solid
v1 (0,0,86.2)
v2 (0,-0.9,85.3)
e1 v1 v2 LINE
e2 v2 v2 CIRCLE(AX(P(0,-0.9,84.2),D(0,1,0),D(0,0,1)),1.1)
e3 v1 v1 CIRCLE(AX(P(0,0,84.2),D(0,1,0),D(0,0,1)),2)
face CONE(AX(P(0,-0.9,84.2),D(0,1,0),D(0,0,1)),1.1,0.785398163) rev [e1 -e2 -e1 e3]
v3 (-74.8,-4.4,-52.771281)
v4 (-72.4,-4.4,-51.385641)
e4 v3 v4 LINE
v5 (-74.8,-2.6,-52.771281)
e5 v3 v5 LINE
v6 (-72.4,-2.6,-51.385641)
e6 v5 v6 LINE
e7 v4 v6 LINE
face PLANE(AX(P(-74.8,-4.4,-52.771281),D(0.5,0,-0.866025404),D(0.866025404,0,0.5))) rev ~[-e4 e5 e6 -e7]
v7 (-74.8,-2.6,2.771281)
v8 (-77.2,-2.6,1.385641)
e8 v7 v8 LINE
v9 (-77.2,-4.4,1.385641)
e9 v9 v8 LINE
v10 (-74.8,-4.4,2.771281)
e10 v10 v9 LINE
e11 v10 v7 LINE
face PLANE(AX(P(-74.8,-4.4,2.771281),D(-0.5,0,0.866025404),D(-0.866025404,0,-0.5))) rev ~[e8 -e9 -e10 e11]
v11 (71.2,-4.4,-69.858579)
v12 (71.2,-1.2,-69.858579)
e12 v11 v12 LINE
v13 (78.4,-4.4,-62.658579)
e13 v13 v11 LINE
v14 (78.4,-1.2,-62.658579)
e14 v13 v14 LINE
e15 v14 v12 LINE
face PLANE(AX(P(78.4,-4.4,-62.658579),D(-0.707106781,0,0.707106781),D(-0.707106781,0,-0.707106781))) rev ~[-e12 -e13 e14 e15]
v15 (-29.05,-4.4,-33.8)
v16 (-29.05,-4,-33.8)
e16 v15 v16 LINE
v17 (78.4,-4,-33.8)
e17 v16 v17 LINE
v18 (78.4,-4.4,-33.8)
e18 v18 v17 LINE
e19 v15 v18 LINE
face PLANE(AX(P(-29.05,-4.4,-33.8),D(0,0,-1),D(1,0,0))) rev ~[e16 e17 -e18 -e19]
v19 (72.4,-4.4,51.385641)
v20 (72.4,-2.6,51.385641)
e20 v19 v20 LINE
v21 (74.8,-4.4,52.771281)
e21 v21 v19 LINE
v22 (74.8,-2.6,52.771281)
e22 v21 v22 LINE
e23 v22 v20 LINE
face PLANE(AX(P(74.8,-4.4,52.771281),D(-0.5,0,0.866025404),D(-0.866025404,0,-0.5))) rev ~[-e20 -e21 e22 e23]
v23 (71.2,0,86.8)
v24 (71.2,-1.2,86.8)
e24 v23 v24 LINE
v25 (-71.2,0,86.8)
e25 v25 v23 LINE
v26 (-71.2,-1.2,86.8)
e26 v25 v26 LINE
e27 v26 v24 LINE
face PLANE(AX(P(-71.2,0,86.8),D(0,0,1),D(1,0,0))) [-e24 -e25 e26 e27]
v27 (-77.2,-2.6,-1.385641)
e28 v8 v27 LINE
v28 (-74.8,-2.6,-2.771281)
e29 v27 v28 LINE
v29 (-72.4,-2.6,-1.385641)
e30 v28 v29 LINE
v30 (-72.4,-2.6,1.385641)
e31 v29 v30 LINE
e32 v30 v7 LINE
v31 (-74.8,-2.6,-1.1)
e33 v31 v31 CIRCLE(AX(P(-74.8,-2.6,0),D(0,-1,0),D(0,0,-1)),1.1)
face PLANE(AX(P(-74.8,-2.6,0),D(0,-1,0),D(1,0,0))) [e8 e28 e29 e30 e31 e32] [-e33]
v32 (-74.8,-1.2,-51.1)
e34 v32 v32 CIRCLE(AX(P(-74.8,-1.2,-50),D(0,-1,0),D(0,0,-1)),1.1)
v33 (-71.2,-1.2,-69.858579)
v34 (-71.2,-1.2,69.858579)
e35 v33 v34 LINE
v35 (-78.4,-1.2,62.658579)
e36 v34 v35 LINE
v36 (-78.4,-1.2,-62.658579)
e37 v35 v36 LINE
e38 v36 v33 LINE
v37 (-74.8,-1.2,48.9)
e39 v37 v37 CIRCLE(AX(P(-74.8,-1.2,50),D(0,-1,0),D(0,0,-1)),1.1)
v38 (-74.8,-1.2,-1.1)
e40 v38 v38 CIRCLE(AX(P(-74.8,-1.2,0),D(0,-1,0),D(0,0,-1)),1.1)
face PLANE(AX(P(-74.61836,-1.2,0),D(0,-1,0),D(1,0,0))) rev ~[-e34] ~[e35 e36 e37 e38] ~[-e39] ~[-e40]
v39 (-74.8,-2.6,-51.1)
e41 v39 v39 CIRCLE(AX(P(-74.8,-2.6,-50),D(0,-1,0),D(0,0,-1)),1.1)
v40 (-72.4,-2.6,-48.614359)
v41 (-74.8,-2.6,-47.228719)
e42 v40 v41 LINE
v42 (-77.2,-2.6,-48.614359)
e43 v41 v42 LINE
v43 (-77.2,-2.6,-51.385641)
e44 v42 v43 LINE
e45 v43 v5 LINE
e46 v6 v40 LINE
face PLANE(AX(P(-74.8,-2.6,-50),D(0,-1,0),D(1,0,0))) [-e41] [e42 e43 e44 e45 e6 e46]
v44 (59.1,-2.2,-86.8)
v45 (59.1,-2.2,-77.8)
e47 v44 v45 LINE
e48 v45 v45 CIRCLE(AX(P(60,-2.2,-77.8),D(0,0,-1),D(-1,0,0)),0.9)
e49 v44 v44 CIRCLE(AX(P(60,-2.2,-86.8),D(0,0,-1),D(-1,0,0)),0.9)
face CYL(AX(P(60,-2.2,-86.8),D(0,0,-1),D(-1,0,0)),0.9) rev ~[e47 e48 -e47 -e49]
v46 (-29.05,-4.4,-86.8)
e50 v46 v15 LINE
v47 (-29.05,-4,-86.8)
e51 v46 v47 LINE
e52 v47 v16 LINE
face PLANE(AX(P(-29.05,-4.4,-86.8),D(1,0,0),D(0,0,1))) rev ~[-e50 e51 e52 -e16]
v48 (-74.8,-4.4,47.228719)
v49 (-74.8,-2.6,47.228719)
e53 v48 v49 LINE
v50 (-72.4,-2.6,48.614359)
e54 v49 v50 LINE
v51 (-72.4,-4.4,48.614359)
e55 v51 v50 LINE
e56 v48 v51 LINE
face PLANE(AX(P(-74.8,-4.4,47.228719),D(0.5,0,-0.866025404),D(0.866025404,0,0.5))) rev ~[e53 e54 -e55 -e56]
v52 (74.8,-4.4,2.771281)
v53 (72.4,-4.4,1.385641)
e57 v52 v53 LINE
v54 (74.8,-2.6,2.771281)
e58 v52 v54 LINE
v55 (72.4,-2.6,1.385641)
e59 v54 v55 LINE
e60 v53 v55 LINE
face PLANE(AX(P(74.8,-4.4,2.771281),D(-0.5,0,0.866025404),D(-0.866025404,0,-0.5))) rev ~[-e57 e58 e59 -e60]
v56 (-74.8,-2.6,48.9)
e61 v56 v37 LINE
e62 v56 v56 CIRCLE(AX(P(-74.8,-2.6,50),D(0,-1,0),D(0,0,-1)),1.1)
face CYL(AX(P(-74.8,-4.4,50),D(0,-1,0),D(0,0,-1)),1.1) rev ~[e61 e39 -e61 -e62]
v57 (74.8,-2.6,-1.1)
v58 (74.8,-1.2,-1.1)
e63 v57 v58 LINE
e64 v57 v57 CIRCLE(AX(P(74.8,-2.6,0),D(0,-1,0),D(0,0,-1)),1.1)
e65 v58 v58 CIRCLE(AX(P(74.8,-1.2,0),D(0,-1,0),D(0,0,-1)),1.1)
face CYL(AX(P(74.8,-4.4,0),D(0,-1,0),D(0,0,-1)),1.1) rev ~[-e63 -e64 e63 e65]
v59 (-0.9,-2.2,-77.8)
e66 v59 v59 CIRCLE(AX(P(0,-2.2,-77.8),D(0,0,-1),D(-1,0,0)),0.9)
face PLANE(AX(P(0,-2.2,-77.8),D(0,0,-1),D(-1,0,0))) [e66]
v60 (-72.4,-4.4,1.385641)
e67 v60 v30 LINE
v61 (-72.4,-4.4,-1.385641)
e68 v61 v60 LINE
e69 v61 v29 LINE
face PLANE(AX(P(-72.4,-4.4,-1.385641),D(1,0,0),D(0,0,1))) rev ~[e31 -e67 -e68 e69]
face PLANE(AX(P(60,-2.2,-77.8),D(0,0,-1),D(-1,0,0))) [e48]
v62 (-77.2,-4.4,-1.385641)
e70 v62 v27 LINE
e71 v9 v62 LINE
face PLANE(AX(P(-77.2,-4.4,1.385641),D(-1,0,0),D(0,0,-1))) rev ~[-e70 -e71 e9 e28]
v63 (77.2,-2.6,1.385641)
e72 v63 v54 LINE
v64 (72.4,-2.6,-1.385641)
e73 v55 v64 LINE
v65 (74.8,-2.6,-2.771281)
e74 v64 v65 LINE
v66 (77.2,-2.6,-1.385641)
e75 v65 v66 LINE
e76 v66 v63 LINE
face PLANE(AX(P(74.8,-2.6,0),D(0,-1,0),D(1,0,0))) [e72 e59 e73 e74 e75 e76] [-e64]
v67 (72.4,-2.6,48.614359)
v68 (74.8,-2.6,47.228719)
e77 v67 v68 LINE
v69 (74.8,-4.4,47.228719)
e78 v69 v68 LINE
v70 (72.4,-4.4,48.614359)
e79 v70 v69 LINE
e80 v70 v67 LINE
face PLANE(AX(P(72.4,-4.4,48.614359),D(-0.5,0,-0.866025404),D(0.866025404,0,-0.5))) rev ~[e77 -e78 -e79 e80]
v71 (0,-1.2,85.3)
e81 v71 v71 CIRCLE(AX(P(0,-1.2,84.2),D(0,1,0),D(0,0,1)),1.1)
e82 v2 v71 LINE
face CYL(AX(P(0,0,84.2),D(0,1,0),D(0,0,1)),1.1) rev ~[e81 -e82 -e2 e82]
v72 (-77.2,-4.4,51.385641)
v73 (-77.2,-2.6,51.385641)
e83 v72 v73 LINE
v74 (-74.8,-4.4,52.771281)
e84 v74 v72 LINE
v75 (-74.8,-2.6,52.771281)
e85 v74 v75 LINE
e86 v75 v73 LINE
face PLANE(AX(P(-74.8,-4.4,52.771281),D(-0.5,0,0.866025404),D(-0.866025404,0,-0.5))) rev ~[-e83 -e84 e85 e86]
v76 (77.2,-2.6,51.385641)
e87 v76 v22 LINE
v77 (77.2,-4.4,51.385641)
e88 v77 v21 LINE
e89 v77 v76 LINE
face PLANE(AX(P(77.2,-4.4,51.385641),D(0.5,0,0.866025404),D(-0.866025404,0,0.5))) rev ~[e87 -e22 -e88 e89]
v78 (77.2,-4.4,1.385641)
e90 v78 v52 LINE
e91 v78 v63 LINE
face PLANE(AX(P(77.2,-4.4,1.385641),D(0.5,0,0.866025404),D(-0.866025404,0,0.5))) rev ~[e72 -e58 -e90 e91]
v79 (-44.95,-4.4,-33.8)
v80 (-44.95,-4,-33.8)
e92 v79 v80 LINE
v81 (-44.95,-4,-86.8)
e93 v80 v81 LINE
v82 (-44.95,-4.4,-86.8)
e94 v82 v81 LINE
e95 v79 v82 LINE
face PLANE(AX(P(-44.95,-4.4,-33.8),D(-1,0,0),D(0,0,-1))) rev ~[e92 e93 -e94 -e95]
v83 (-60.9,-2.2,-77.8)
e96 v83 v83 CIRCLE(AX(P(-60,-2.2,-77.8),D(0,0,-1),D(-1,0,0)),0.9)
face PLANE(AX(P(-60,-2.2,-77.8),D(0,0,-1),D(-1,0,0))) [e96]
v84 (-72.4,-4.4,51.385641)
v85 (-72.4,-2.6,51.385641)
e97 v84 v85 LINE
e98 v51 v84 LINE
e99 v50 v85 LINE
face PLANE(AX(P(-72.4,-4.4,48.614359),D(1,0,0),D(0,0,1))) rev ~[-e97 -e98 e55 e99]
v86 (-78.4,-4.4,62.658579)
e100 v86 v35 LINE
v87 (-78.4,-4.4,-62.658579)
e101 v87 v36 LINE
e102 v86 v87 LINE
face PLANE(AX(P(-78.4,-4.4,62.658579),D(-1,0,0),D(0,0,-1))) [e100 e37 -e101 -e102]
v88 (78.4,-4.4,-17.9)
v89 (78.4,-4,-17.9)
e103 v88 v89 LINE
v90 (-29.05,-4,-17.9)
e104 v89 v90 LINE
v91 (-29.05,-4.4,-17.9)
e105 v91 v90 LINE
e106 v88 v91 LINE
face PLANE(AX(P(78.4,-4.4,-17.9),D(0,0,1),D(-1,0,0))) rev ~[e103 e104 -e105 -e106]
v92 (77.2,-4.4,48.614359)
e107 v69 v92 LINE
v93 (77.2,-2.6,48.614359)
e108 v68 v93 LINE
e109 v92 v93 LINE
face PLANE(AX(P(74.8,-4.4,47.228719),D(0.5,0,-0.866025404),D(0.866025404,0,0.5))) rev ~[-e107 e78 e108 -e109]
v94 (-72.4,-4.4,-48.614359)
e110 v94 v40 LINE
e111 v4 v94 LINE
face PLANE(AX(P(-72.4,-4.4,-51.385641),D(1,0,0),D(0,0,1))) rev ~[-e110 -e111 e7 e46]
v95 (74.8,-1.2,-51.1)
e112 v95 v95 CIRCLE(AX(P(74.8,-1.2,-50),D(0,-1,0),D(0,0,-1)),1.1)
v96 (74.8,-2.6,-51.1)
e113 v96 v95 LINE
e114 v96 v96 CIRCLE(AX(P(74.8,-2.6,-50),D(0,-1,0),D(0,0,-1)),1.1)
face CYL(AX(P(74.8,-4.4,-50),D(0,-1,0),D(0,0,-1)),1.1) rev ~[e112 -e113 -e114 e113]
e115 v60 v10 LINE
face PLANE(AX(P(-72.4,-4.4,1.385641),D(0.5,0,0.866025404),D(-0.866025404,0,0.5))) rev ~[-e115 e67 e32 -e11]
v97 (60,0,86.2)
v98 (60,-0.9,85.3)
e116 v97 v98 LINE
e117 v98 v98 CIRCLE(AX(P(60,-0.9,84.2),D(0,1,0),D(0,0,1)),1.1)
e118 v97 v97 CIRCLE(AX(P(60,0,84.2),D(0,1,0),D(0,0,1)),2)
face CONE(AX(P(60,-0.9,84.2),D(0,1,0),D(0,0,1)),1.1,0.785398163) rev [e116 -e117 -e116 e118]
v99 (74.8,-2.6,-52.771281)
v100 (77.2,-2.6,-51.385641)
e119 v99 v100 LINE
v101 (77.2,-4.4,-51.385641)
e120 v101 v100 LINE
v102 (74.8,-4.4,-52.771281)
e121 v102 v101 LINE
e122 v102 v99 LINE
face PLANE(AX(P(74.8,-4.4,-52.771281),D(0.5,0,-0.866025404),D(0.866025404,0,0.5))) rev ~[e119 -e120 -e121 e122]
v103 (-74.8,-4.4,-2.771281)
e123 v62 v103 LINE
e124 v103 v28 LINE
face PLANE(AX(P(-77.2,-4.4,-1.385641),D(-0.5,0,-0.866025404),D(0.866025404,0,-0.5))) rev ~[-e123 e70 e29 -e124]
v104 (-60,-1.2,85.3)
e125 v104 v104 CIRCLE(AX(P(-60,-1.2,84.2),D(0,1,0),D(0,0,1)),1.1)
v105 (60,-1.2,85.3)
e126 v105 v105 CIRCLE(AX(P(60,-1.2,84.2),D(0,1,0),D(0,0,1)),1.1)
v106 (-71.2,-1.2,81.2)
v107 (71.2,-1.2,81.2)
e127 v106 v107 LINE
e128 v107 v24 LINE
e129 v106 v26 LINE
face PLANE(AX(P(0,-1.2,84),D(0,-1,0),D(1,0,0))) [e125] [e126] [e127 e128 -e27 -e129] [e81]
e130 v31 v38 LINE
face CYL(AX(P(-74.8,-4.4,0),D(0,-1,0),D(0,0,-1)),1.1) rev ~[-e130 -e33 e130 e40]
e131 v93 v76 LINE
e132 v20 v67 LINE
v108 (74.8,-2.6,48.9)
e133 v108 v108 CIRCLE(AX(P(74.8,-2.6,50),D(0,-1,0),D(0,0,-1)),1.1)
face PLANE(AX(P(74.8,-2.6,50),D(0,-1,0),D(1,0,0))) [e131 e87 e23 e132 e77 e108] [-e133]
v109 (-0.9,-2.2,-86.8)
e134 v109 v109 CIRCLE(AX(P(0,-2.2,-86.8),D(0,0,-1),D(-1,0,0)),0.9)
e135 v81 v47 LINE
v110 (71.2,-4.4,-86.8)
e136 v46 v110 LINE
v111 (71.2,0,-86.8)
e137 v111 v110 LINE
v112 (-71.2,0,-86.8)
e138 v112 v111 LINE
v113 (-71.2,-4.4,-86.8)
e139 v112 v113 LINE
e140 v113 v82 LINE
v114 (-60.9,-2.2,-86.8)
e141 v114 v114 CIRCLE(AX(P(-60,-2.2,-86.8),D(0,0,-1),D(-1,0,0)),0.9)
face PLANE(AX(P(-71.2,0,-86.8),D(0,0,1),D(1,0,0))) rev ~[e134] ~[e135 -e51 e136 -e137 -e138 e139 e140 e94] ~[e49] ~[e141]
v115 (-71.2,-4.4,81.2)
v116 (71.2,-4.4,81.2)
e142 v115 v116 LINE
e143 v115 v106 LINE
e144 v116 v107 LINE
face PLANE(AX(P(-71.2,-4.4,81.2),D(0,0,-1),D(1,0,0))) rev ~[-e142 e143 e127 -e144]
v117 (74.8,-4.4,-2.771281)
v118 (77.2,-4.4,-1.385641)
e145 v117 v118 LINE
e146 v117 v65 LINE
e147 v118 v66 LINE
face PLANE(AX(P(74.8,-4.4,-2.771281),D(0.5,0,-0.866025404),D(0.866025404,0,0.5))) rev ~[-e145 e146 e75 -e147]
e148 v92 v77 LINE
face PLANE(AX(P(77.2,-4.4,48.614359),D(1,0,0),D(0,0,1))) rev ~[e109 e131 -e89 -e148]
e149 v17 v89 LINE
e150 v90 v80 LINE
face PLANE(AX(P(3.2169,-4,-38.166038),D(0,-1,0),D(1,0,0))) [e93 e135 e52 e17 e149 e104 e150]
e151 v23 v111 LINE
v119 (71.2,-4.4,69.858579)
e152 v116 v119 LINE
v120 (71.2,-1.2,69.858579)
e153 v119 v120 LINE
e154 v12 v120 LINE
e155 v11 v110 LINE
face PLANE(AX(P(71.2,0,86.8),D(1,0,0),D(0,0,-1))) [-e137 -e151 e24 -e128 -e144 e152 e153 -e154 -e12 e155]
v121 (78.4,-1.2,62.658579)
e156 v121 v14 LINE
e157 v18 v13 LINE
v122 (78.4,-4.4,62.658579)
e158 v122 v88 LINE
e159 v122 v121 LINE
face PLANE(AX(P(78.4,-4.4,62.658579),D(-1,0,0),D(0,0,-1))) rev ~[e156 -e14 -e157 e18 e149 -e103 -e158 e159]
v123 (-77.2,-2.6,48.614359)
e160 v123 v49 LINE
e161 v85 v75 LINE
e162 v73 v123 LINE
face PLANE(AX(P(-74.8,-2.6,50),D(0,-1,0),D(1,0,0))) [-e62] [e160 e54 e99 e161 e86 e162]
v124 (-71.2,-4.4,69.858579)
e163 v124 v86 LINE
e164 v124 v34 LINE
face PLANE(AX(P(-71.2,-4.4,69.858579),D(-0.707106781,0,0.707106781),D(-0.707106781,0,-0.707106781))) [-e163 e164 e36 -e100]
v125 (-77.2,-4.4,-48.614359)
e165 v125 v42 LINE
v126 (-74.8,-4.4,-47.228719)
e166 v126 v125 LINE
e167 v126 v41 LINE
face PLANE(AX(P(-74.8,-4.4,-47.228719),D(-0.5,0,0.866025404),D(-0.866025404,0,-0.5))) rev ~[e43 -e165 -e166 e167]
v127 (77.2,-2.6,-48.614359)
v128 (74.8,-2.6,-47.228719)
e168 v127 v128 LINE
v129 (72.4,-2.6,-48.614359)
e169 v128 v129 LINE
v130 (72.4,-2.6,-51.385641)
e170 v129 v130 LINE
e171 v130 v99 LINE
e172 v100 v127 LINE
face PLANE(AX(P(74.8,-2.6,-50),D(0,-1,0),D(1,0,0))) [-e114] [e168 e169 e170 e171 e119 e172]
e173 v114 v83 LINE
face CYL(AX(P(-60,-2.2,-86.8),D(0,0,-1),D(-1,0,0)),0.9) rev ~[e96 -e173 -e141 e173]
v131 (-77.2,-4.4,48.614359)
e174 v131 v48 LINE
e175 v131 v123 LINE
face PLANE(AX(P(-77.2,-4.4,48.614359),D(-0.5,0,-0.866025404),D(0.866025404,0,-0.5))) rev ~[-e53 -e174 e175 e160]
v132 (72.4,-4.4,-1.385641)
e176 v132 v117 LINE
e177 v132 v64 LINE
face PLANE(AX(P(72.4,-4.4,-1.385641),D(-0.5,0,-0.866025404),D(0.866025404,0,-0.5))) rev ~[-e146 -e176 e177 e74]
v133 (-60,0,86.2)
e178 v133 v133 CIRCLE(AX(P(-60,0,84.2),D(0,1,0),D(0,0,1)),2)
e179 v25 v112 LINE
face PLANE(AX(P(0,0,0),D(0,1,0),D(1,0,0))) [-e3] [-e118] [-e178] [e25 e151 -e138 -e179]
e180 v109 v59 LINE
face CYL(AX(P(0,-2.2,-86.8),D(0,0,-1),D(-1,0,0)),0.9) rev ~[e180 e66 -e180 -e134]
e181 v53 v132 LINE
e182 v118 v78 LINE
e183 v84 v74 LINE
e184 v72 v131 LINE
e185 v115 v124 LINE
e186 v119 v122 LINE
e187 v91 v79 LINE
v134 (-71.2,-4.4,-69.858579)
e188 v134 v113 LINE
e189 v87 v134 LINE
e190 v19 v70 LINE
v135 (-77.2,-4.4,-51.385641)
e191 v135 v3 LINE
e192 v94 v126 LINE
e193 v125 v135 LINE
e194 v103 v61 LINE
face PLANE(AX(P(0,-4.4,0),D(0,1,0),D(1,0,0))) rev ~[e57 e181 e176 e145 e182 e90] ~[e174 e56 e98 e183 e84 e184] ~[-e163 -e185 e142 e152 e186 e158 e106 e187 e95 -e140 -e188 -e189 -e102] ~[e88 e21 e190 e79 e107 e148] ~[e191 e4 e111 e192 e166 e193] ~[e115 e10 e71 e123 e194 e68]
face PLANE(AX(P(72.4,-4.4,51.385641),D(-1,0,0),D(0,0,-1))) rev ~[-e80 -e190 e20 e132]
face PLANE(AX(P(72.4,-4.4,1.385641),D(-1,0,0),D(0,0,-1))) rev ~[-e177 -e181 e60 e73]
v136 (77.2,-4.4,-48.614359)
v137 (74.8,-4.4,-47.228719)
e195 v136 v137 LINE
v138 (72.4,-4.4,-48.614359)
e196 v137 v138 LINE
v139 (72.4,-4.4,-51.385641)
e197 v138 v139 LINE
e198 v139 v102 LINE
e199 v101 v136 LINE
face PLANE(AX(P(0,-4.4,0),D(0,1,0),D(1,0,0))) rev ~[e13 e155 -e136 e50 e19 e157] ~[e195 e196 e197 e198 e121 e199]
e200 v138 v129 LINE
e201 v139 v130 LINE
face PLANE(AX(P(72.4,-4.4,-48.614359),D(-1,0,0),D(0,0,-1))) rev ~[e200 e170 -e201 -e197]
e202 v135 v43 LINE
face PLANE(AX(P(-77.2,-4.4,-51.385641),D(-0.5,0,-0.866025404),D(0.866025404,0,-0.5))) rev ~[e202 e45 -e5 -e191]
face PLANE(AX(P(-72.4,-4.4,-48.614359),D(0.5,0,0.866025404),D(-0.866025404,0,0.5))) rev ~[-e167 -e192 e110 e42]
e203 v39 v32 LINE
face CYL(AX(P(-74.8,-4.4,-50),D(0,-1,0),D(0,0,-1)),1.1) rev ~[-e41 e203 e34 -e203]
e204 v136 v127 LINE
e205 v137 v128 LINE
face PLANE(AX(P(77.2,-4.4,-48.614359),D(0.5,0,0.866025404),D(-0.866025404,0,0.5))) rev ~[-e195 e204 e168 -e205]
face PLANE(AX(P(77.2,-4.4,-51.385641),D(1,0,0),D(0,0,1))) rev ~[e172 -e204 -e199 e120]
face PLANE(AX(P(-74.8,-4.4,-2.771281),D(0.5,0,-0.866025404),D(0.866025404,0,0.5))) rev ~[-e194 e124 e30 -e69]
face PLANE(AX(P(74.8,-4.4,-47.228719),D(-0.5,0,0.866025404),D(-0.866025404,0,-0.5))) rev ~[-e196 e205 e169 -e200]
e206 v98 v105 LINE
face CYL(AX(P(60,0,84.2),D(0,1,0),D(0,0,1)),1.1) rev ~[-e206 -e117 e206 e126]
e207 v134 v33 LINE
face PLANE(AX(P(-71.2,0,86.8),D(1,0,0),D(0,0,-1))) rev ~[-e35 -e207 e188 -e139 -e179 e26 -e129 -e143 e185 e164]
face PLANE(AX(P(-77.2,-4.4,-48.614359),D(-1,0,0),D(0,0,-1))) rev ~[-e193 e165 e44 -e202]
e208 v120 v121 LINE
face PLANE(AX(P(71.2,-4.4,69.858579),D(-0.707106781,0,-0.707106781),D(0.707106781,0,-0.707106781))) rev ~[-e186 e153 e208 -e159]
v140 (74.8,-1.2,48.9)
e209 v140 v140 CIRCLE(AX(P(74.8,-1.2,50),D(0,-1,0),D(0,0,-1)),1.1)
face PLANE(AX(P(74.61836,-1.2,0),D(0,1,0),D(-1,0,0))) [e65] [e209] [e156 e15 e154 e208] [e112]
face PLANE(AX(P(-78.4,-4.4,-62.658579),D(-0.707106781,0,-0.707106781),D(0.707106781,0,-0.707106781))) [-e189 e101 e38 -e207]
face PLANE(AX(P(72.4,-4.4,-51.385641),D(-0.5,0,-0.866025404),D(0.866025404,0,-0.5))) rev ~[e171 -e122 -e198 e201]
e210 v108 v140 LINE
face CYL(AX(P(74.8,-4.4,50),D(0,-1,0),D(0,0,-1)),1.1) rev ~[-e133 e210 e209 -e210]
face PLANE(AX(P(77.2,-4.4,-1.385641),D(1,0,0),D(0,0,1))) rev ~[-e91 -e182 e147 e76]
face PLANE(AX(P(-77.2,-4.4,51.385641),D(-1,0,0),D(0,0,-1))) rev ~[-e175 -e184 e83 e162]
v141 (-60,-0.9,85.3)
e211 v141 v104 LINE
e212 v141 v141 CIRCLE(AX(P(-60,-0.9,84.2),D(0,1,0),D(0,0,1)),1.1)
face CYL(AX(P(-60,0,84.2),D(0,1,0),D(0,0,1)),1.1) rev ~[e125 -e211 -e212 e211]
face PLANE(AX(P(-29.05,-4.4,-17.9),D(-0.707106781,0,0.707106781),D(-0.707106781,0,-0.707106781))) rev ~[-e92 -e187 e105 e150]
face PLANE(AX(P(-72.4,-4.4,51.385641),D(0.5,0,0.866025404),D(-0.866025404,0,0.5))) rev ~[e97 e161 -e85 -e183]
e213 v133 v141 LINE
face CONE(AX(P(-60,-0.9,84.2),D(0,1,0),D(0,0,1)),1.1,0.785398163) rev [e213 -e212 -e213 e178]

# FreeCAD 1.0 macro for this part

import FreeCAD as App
import Part
import Sketcher
Q = App.Units.Quantity


def edges_at(feature, points):
    """Names of the edges that pass closest to the given points."""
    edges = feature.Shape.Edges
    near = lambda p: min(range(len(edges)), key=lambda i: edges[i].distToShape(Part.Vertex(*p))[0])
    return sorted({f"Edge{near(p) + 1}" for p in points})

doc = App.newDocument("Part")
body = doc.addObject("PartDesign::Body", "Body")

# Sketch on XZ plane
sketch1 = body.newObject("Sketcher::SketchObject", "Sketch")
sketch1.AttachmentSupport = (doc.getObject("XZ_Plane"), [""])
sketch1.MapMode = "FlatFace"
sketch1.addGeometry(Part.LineSegment(App.Vector(-71.2, -86.8, 0), App.Vector(-71.2, 86.8, 0)), False)
sketch1.addGeometry(Part.LineSegment(App.Vector(-71.2, 86.8, 0), App.Vector(71.2, 86.8, 0)), False)
sketch1.addGeometry(Part.LineSegment(App.Vector(71.2, 86.8, 0), App.Vector(71.2, -86.8, 0)), False)
sketch1.addGeometry(Part.LineSegment(App.Vector(71.2, -86.8, 0), App.Vector(-71.2, -86.8, 0)), False)
sketch1.addConstraint(Sketcher.Constraint("Coincident", 0, 2, 1, 1))
sketch1.addConstraint(Sketcher.Constraint("Coincident", 1, 2, 2, 1))
sketch1.addConstraint(Sketcher.Constraint("Coincident", 2, 2, 3, 1))
sketch1.addConstraint(Sketcher.Constraint("Coincident", 3, 2, 0, 1))
sketch1.addConstraint(Sketcher.Constraint("Vertical", 0))
sketch1.addConstraint(Sketcher.Constraint("Horizontal", 1))
sketch1.addConstraint(Sketcher.Constraint("Vertical", 2))
sketch1.addConstraint(Sketcher.Constraint("Horizontal", 3))
sketch1.addConstraint(Sketcher.Constraint("Symmetric", 0, 2, 2, 2, -1, 1))
sketch1.addConstraint(Sketcher.Constraint("DistanceX", 1, 1, 1, 2, 142.4))
sketch1.addConstraint(Sketcher.Constraint("DistanceY", 0, 1, 0, 2, 173.6))
pad1 = body.newObject("PartDesign::Pad", "Pad")
pad1.Profile = sketch1
pad1.Length = 4.4

# Sketch on XZ plane
sketch2 = body.newObject("Sketcher::SketchObject", "Sketch001")
sketch2.AttachmentSupport = (doc.getObject("XZ_Plane"), [""])
sketch2.MapMode = "FlatFace"
sketch2.AttachmentOffset = App.Placement(App.Vector(0, 0, 4.4), App.Rotation())
sketch2.addGeometry(Part.LineSegment(App.Vector(-71.2, 86.8, 0), App.Vector(-71.2, 81.2, 0)), False)
sketch2.addGeometry(Part.LineSegment(App.Vector(-71.2, 81.2, 0), App.Vector(71.2, 81.2, 0)), False)
sketch2.addGeometry(Part.LineSegment(App.Vector(71.2, 81.2, 0), App.Vector(71.2, 86.8, 0)), False)
sketch2.addGeometry(Part.LineSegment(App.Vector(71.2, 86.8, 0), App.Vector(-71.2, 86.8, 0)), False)
sketch2.addConstraint(Sketcher.Constraint("Coincident", 0, 2, 1, 1))
sketch2.addConstraint(Sketcher.Constraint("Coincident", 1, 2, 2, 1))
sketch2.addConstraint(Sketcher.Constraint("Coincident", 2, 2, 3, 1))
sketch2.addConstraint(Sketcher.Constraint("Coincident", 3, 2, 0, 1))
sketch2.addConstraint(Sketcher.Constraint("Vertical", 0))
sketch2.addConstraint(Sketcher.Constraint("Horizontal", 1))
sketch2.addConstraint(Sketcher.Constraint("Vertical", 2))
sketch2.addConstraint(Sketcher.Constraint("Horizontal", 3))
sketch2.addConstraint(Sketcher.Constraint("DistanceX", 1, 1, 1, 2, 142.4))
sketch2.addConstraint(Sketcher.Constraint("DistanceY", 0, 2, 0, 1, 5.6))
sketch2.addConstraint(Sketcher.Constraint("DistanceX", 0, 2, -1, 1, 71.2))
sketch2.addConstraint(Sketcher.Constraint("DistanceY", -1, 1, 0, 2, 81.2))
pocket1 = body.newObject("PartDesign::Pocket", "Pocket")
pocket1.Profile = sketch2
pocket1.Length = 3.2

# Sketch on XZ plane
sketch3 = body.newObject("Sketcher::SketchObject", "Sketch002")
sketch3.AttachmentSupport = (doc.getObject("XZ_Plane"), [""])
sketch3.MapMode = "FlatFace"
sketch3.addGeometry(Part.Circle(App.Vector(60, 84.2, 0), App.Vector(0, 0, 1), 1.1), False)
sketch3.addConstraint(Sketcher.Constraint("Diameter", 0, 2.2))
sketch3.addConstraint(Sketcher.Constraint("DistanceX", -1, 1, 0, 3, 60.0))
sketch3.addConstraint(Sketcher.Constraint("DistanceY", -1, 1, 0, 3, 84.2))
pocket2 = body.newObject("PartDesign::Pocket", "Pocket001")
pocket2.Profile = sketch3
pocket2.Type = "UpToFirst"
pocket2.Reversed = True

# Sketch on XZ plane
sketch4 = body.newObject("Sketcher::SketchObject", "Sketch003")
sketch4.AttachmentSupport = (doc.getObject("XZ_Plane"), [""])
sketch4.MapMode = "FlatFace"
sketch4.addGeometry(Part.Circle(App.Vector(-60, 84.2, 0), App.Vector(0, 0, 1), 1.1), False)
sketch4.addConstraint(Sketcher.Constraint("Diameter", 0, 2.2))
sketch4.addConstraint(Sketcher.Constraint("DistanceX", 0, 3, -1, 1, 60.0))
sketch4.addConstraint(Sketcher.Constraint("DistanceY", -1, 1, 0, 3, 84.2))
pocket3 = body.newObject("PartDesign::Pocket", "Pocket002")
pocket3.Profile = sketch4
pocket3.Type = "UpToFirst"
pocket3.Reversed = True

# Sketch on XZ plane
sketch5 = body.newObject("Sketcher::SketchObject", "Sketch004")
sketch5.AttachmentSupport = (doc.getObject("XZ_Plane"), [""])
sketch5.MapMode = "FlatFace"
sketch5.addGeometry(Part.Circle(App.Vector(0, 84.2, 0), App.Vector(0, 0, 1), 1.1), False)
sketch5.addConstraint(Sketcher.Constraint("PointOnObject", 0, 3, -2))
sketch5.addConstraint(Sketcher.Constraint("Diameter", 0, 2.2))
sketch5.addConstraint(Sketcher.Constraint("DistanceY", -1, 1, 0, 3, 84.2))
pocket4 = body.newObject("PartDesign::Pocket", "Pocket003")
pocket4.Profile = sketch5
pocket4.Type = "UpToFirst"
pocket4.Reversed = True

# Sketch on XY plane
sketch6 = body.newObject("Sketcher::SketchObject", "Sketch005")
sketch6.AttachmentSupport = (doc.getObject("XY_Plane"), [""])
sketch6.MapMode = "FlatFace"
sketch6.AttachmentOffset = App.Placement(App.Vector(0, 0, -86.8), App.Rotation())
sketch6.addGeometry(Part.Circle(App.Vector(0, -2.2, 0), App.Vector(0, 0, 1), 0.9), False)
sketch6.addGeometry(Part.Circle(App.Vector(-60, -2.2, 0), App.Vector(0, 0, 1), 0.9), False)
sketch6.addGeometry(Part.Circle(App.Vector(60, -2.2, 0), App.Vector(0, 0, 1), 0.9), False)
sketch6.addConstraint(Sketcher.Constraint("Equal", 0, 1))
sketch6.addConstraint(Sketcher.Constraint("Equal", 1, 2))
sketch6.addConstraint(Sketcher.Constraint("Symmetric", 1, 3, 2, 3, -2))
sketch6.addConstraint(Sketcher.Constraint("PointOnObject", 0, 3, -2))
sketch6.addConstraint(Sketcher.Constraint("Horizontal", 0, 3, 1, 3))
sketch6.addConstraint(Sketcher.Constraint("Diameter", 0, 1.8))
sketch6.addConstraint(Sketcher.Constraint("DistanceX", 1, 3, -1, 1, 60.0))
sketch6.addConstraint(Sketcher.Constraint("DistanceY", 0, 3, -1, 1, 2.2))
pocket5 = body.newObject("PartDesign::Pocket", "Pocket004")
pocket5.Profile = sketch6
pocket5.Length = 9
pocket5.Reversed = True
doc.recompute()

chamfer = body.newObject("PartDesign::Chamfer", "Chamfer")
chamfer.Base = (pocket5, edges_at(pocket5, [(60, 0, 83.1), (-60, 0, 83.1), (0, 0, 83.1)]))
chamfer.Size = 0.9

# Sketch on XZ plane
sketch7 = body.newObject("Sketcher::SketchObject", "Sketch006")
sketch7.AttachmentSupport = (doc.getObject("XZ_Plane"), [""])
sketch7.MapMode = "FlatFace"
sketch7.AttachmentOffset = App.Placement(App.Vector(0, 0, 4.4), App.Rotation())
sketch7.addGeometry(Part.LineSegment(App.Vector(-71.2, 69.858579, 0), App.Vector(-78.4, 62.658579, 0)), False)
sketch7.addGeometry(Part.LineSegment(App.Vector(-78.4, 62.658579, 0), App.Vector(-78.4, -62.658579, 0)), False)
sketch7.addGeometry(Part.LineSegment(App.Vector(-78.4, -62.658579, 0), App.Vector(-71.2, -69.858579, 0)), False)
sketch7.addGeometry(Part.LineSegment(App.Vector(-71.2, -69.858579, 0), App.Vector(-71.2, 69.858579, 0)), False)
sketch7.addGeometry(Part.LineSegment(App.Vector(78.4, 62.658579, 0), App.Vector(71.2, 69.858579, 0)), False)
sketch7.addGeometry(Part.LineSegment(App.Vector(71.2, 69.858579, 0), App.Vector(71.2, -69.858579, 0)), False)
sketch7.addGeometry(Part.LineSegment(App.Vector(71.2, -69.858579, 0), App.Vector(78.4, -62.658579, 0)), False)
sketch7.addGeometry(Part.LineSegment(App.Vector(78.4, -62.658579, 0), App.Vector(78.4, 62.658579, 0)), False)
sketch7.addConstraint(Sketcher.Constraint("Coincident", 0, 2, 1, 1))
sketch7.addConstraint(Sketcher.Constraint("Coincident", 1, 2, 2, 1))
sketch7.addConstraint(Sketcher.Constraint("Coincident", 2, 2, 3, 1))
sketch7.addConstraint(Sketcher.Constraint("Coincident", 3, 2, 0, 1))
sketch7.addConstraint(Sketcher.Constraint("Coincident", 4, 2, 5, 1))
sketch7.addConstraint(Sketcher.Constraint("Coincident", 5, 2, 6, 1))
sketch7.addConstraint(Sketcher.Constraint("Coincident", 6, 2, 7, 1))
sketch7.addConstraint(Sketcher.Constraint("Coincident", 7, 2, 4, 1))
sketch7.addConstraint(Sketcher.Constraint("Vertical", 1))
sketch7.addConstraint(Sketcher.Constraint("Vertical", 3))
sketch7.addConstraint(Sketcher.Constraint("Vertical", 5))
sketch7.addConstraint(Sketcher.Constraint("Vertical", 7))
sketch7.addConstraint(Sketcher.Constraint("Symmetric", 2, 2, 4, 2, -1, 1))
sketch7.addConstraint(Sketcher.Constraint("Symmetric", 0, 2, 6, 2, -1, 1))
sketch7.addConstraint(Sketcher.Constraint("Perpendicular", 0, 2))
sketch7.addConstraint(Sketcher.Constraint("Parallel", 2, 4))
sketch7.addConstraint(Sketcher.Constraint("Perpendicular", 4, 6))
sketch7.addConstraint(Sketcher.Constraint("Horizontal", 3, 2, 4, 2))
sketch7.addConstraint(Sketcher.Constraint("Horizontal", 1, 2, 6, 2))
sketch7.addConstraint(Sketcher.Constraint("DistanceX", 0, 2, -1, 1, 78.4))
sketch7.addConstraint(Sketcher.Constraint("DistanceX", 2, 2, -1, 1, 71.2))
sketch7.addConstraint(Sketcher.Constraint("DistanceY", 1, 2, 1, 1, 125.317157))
pad2 = body.newObject("PartDesign::Pad", "Pad001")
pad2.Profile = sketch7
pad2.Length = 3.2
pad2.Reversed = True

# Sketch on XZ plane
sketch8 = body.newObject("Sketcher::SketchObject", "Sketch007")
sketch8.AttachmentSupport = (doc.getObject("XZ_Plane"), [""])
sketch8.MapMode = "FlatFace"
sketch8.AttachmentOffset = App.Placement(App.Vector(0, 0, 4.4), App.Rotation())
sketch8.addGeometry(Part.Circle(App.Vector(74.8, 50, 0), App.Vector(0, 0, 1), 1.1), False)
sketch8.addGeometry(Part.Circle(App.Vector(74.8, 0, 0), App.Vector(0, 0, 1), 1.1), False)
sketch8.addGeometry(Part.Circle(App.Vector(74.8, -50, 0), App.Vector(0, 0, 1), 1.1), False)
sketch8.addGeometry(Part.Circle(App.Vector(-74.8, 50, 0), App.Vector(0, 0, 1), 1.1), False)
sketch8.addGeometry(Part.Circle(App.Vector(-74.8, 0, 0), App.Vector(0, 0, 1), 1.1), False)
sketch8.addGeometry(Part.Circle(App.Vector(-74.8, -50, 0), App.Vector(0, 0, 1), 1.1), False)
sketch8.addConstraint(Sketcher.Constraint("Equal", 0, 1))
sketch8.addConstraint(Sketcher.Constraint("Equal", 1, 2))
sketch8.addConstraint(Sketcher.Constraint("Equal", 2, 3))
sketch8.addConstraint(Sketcher.Constraint("Equal", 3, 4))
sketch8.addConstraint(Sketcher.Constraint("Equal", 4, 5))
sketch8.addConstraint(Sketcher.Constraint("Symmetric", 2, 3, 3, 3, -1, 1))
sketch8.addConstraint(Sketcher.Constraint("Symmetric", 1, 3, 4, 3, -1, 1))
sketch8.addConstraint(Sketcher.Constraint("Symmetric", 0, 3, 5, 3, -1, 1))
sketch8.addConstraint(Sketcher.Constraint("Symmetric", 0, 3, 3, 3, -2))
sketch8.addConstraint(Sketcher.Constraint("PointOnObject", 1, 3, -1))
sketch8.addConstraint(Sketcher.Constraint("Vertical", 0, 3, 1, 3))
sketch8.addConstraint(Sketcher.Constraint("Diameter", 0, 2.2))
sketch8.addConstraint(Sketcher.Constraint("DistanceY", -1, 1, 0, 3, 50.0))
sketch8.addConstraint(Sketcher.Constraint("DistanceX", -1, 1, 0, 3, 74.8))
pocket6 = body.newObject("PartDesign::Pocket", "Pocket005")
pocket6.Profile = sketch8
pocket6.Type = "ThroughAll"

# Sketch on XZ plane
sketch9 = body.newObject("Sketcher::SketchObject", "Sketch008")
sketch9.AttachmentSupport = (doc.getObject("XZ_Plane"), [""])
sketch9.MapMode = "FlatFace"
sketch9.AttachmentOffset = App.Placement(App.Vector(0, 0, 4.4), App.Rotation())
sketch9.addGeometry(Part.LineSegment(App.Vector(72.4, 48.614359, 0), App.Vector(74.8, 47.228719, 0)), False)
sketch9.addGeometry(Part.LineSegment(App.Vector(74.8, 47.228719, 0), App.Vector(77.2, 48.614359, 0)), False)
sketch9.addGeometry(Part.LineSegment(App.Vector(77.2, 48.614359, 0), App.Vector(77.2, 51.385641, 0)), False)
sketch9.addGeometry(Part.LineSegment(App.Vector(77.2, 51.385641, 0), App.Vector(74.8, 52.771281, 0)), False)
sketch9.addGeometry(Part.LineSegment(App.Vector(74.8, 52.771281, 0), App.Vector(72.4, 51.385641, 0)), False)
sketch9.addGeometry(Part.LineSegment(App.Vector(72.4, 51.385641, 0), App.Vector(72.4, 48.614359, 0)), False)
sketch9.addGeometry(Part.LineSegment(App.Vector(77.2, 1.385641, 0), App.Vector(74.8, 2.771281, 0)), False)
sketch9.addGeometry(Part.LineSegment(App.Vector(74.8, 2.771281, 0), App.Vector(72.4, 1.385641, 0)), False)
sketch9.addGeometry(Part.LineSegment(App.Vector(72.4, 1.385641, 0), App.Vector(72.4, -1.385641, 0)), False)
sketch9.addGeometry(Part.LineSegment(App.Vector(72.4, -1.385641, 0), App.Vector(74.8, -2.771281, 0)), False)
sketch9.addGeometry(Part.LineSegment(App.Vector(74.8, -2.771281, 0), App.Vector(77.2, -1.385641, 0)), False)
sketch9.addGeometry(Part.LineSegment(App.Vector(77.2, -1.385641, 0), App.Vector(77.2, 1.385641, 0)), False)
sketch9.addGeometry(Part.LineSegment(App.Vector(77.2, -48.614359, 0), App.Vector(74.8, -47.228719, 0)), False)
sketch9.addGeometry(Part.LineSegment(App.Vector(74.8, -47.228719, 0), App.Vector(72.4, -48.614359, 0)), False)
sketch9.addGeometry(Part.LineSegment(App.Vector(72.4, -48.614359, 0), App.Vector(72.4, -51.385641, 0)), False)
sketch9.addGeometry(Part.LineSegment(App.Vector(72.4, -51.385641, 0), App.Vector(74.8, -52.771281, 0)), False)
sketch9.addGeometry(Part.LineSegment(App.Vector(74.8, -52.771281, 0), App.Vector(77.2, -51.385641, 0)), False)
sketch9.addGeometry(Part.LineSegment(App.Vector(77.2, -51.385641, 0), App.Vector(77.2, -48.614359, 0)), False)
sketch9.addGeometry(Part.LineSegment(App.Vector(-72.4, -51.385641, 0), App.Vector(-72.4, -48.614359, 0)), False)
sketch9.addGeometry(Part.LineSegment(App.Vector(-72.4, -48.614359, 0), App.Vector(-74.8, -47.228719, 0)), False)
sketch9.addGeometry(Part.LineSegment(App.Vector(-74.8, -47.228719, 0), App.Vector(-77.2, -48.614359, 0)), False)
sketch9.addGeometry(Part.LineSegment(App.Vector(-77.2, -48.614359, 0), App.Vector(-77.2, -51.385641, 0)), False)
sketch9.addGeometry(Part.LineSegment(App.Vector(-77.2, -51.385641, 0), App.Vector(-74.8, -52.771281, 0)), False)
sketch9.addGeometry(Part.LineSegment(App.Vector(-74.8, -52.771281, 0), App.Vector(-72.4, -51.385641, 0)), False)
sketch9.addGeometry(Part.LineSegment(App.Vector(-72.4, -1.385641, 0), App.Vector(-72.4, 1.385641, 0)), False)
sketch9.addGeometry(Part.LineSegment(App.Vector(-72.4, 1.385641, 0), App.Vector(-74.8, 2.771281, 0)), False)
sketch9.addGeometry(Part.LineSegment(App.Vector(-74.8, 2.771281, 0), App.Vector(-77.2, 1.385641, 0)), False)
sketch9.addGeometry(Part.LineSegment(App.Vector(-77.2, 1.385641, 0), App.Vector(-77.2, -1.385641, 0)), False)
sketch9.addGeometry(Part.LineSegment(App.Vector(-77.2, -1.385641, 0), App.Vector(-74.8, -2.771281, 0)), False)
sketch9.addGeometry(Part.LineSegment(App.Vector(-74.8, -2.771281, 0), App.Vector(-72.4, -1.385641, 0)), False)
sketch9.addGeometry(Part.LineSegment(App.Vector(-72.4, 48.614359, 0), App.Vector(-72.4, 51.385641, 0)), False)
sketch9.addGeometry(Part.LineSegment(App.Vector(-72.4, 51.385641, 0), App.Vector(-74.8, 52.771281, 0)), False)
sketch9.addGeometry(Part.LineSegment(App.Vector(-74.8, 52.771281, 0), App.Vector(-77.2, 51.385641, 0)), False)
sketch9.addGeometry(Part.LineSegment(App.Vector(-77.2, 51.385641, 0), App.Vector(-77.2, 48.614359, 0)), False)
sketch9.addGeometry(Part.LineSegment(App.Vector(-77.2, 48.614359, 0), App.Vector(-74.8, 47.228719, 0)), False)
sketch9.addGeometry(Part.LineSegment(App.Vector(-74.8, 47.228719, 0), App.Vector(-72.4, 48.614359, 0)), False)
sketch9.addConstraint(Sketcher.Constraint("Coincident", 0, 2, 1, 1))
sketch9.addConstraint(Sketcher.Constraint("Coincident", 1, 2, 2, 1))
sketch9.addConstraint(Sketcher.Constraint("Coincident", 2, 2, 3, 1))
sketch9.addConstraint(Sketcher.Constraint("Coincident", 3, 2, 4, 1))
sketch9.addConstraint(Sketcher.Constraint("Coincident", 4, 2, 5, 1))
sketch9.addConstraint(Sketcher.Constraint("Coincident", 5, 2, 0, 1))
sketch9.addConstraint(Sketcher.Constraint("Coincident", 6, 2, 7, 1))
sketch9.addConstraint(Sketcher.Constraint("Coincident", 7, 2, 8, 1))
sketch9.addConstraint(Sketcher.Constraint("Coincident", 8, 2, 9, 1))
sketch9.addConstraint(Sketcher.Constraint("Coincident", 9, 2, 10, 1))
sketch9.addConstraint(Sketcher.Constraint("Coincident", 10, 2, 11, 1))
sketch9.addConstraint(Sketcher.Constraint("Coincident", 11, 2, 6, 1))
sketch9.addConstraint(Sketcher.Constraint("Coincident", 12, 2, 13, 1))
sketch9.addConstraint(Sketcher.Constraint("Coincident", 13, 2, 14, 1))
sketch9.addConstraint(Sketcher.Constraint("Coincident", 14, 2, 15, 1))
sketch9.addConstraint(Sketcher.Constraint("Coincident", 15, 2, 16, 1))
sketch9.addConstraint(Sketcher.Constraint("Coincident", 16, 2, 17, 1))
sketch9.addConstraint(Sketcher.Constraint("Coincident", 17, 2, 12, 1))
sketch9.addConstraint(Sketcher.Constraint("Coincident", 18, 2, 19, 1))
sketch9.addConstraint(Sketcher.Constraint("Coincident", 19, 2, 20, 1))
sketch9.addConstraint(Sketcher.Constraint("Coincident", 20, 2, 21, 1))
sketch9.addConstraint(Sketcher.Constraint("Coincident", 21, 2, 22, 1))
sketch9.addConstraint(Sketcher.Constraint("Coincident", 22, 2, 23, 1))
sketch9.addConstraint(Sketcher.Constraint("Coincident", 23, 2, 18, 1))
sketch9.addConstraint(Sketcher.Constraint("Coincident", 24, 2, 25, 1))
sketch9.addConstraint(Sketcher.Constraint("Coincident", 25, 2, 26, 1))
sketch9.addConstraint(Sketcher.Constraint("Coincident", 26, 2, 27, 1))
sketch9.addConstraint(Sketcher.Constraint("Coincident", 27, 2, 28, 1))
sketch9.addConstraint(Sketcher.Constraint("Coincident", 28, 2, 29, 1))
sketch9.addConstraint(Sketcher.Constraint("Coincident", 29, 2, 24, 1))
sketch9.addConstraint(Sketcher.Constraint("Coincident", 30, 2, 31, 1))
sketch9.addConstraint(Sketcher.Constraint("Coincident", 31, 2, 32, 1))
sketch9.addConstraint(Sketcher.Constraint("Coincident", 32, 2, 33, 1))
sketch9.addConstraint(Sketcher.Constraint("Coincident", 33, 2, 34, 1))
sketch9.addConstraint(Sketcher.Constraint("Coincident", 34, 2, 35, 1))
sketch9.addConstraint(Sketcher.Constraint("Coincident", 35, 2, 30, 1))
sketch9.addConstraint(Sketcher.Constraint("Vertical", 2))
sketch9.addConstraint(Sketcher.Constraint("Vertical", 5))
sketch9.addConstraint(Sketcher.Constraint("Vertical", 8))
sketch9.addConstraint(Sketcher.Constraint("Vertical", 11))
sketch9.addConstraint(Sketcher.Constraint("Vertical", 14))
sketch9.addConstraint(Sketcher.Constraint("Vertical", 17))
sketch9.addConstraint(Sketcher.Constraint("Vertical", 18))
sketch9.addConstraint(Sketcher.Constraint("Vertical", 21))
sketch9.addConstraint(Sketcher.Constraint("Vertical", 24))
sketch9.addConstraint(Sketcher.Constraint("Vertical", 27))
sketch9.addConstraint(Sketcher.Constraint("Vertical", 30))
sketch9.addConstraint(Sketcher.Constraint("Vertical", 33))
sketch9.addConstraint(Sketcher.Constraint("Symmetric", 5, 2, 18, 2, -1, 1))
sketch9.addConstraint(Sketcher.Constraint("Symmetric", 0, 2, 19, 2, -1, 1))
sketch9.addConstraint(Sketcher.Constraint("Symmetric", 1, 2, 20, 2, -1, 1))
sketch9.addConstraint(Sketcher.Constraint("Symmetric", 3, 2, 22, 2, -1, 1))
sketch9.addConstraint(Sketcher.Constraint("Symmetric", 8, 2, 24, 2, -1, 1))
sketch9.addConstraint(Sketcher.Constraint("Symmetric", 9, 2, 25, 2, -1, 1))
sketch9.addConstraint(Sketcher.Constraint("Symmetric", 10, 2, 26, 2, -1, 1))
sketch9.addConstraint(Sketcher.Constraint("Symmetric", 6, 2, 28, 2, -1, 1))
sketch9.addConstraint(Sketcher.Constraint("Symmetric", 14, 2, 30, 2, -1, 1))
sketch9.addConstraint(Sketcher.Constraint("Symmetric", 15, 2, 31, 2, -1, 1))
sketch9.addConstraint(Sketcher.Constraint("Symmetric", 16, 2, 32, 2, -1, 1))
sketch9.addConstraint(Sketcher.Constraint("Symmetric", 12, 2, 34, 2, -1, 1))
sketch9.addConstraint(Sketcher.Constraint("Symmetric", 13, 2, 18, 2, -2))
sketch9.addConstraint(Sketcher.Constraint("Symmetric", 12, 2, 19, 2, -2))
sketch9.addConstraint(Sketcher.Constraint("Symmetric", 17, 2, 20, 2, -2))
sketch9.addConstraint(Sketcher.Constraint("Symmetric", 15, 2, 22, 2, -2))
sketch9.addConstraint(Sketcher.Constraint("Symmetric", 6, 2, 25, 2, -2))
sketch9.addConstraint(Sketcher.Constraint("Parallel", 0, 3))
sketch9.addConstraint(Sketcher.Constraint("Parallel", 1, 4))
sketch9.addConstraint(Sketcher.Constraint("Parallel", 3, 6))
sketch9.addConstraint(Sketcher.Constraint("Parallel", 4, 7))
sketch9.addConstraint(Sketcher.Constraint("Parallel", 6, 9))
sketch9.addConstraint(Sketcher.Constraint("Parallel", 7, 10))
sketch9.addConstraint(Sketcher.Constraint("Parallel", 9, 12))
sketch9.addConstraint(Sketcher.Constraint("Parallel", 12, 15))
sketch9.addConstraint(Sketcher.Constraint("Parallel", 13, 16))
sketch9.addConstraint(Sketcher.Constraint("Parallel", 19, 22))
sketch9.addConstraint(Sketcher.Constraint("Parallel", 20, 23))
sketch9.addConstraint(Sketcher.Constraint("Parallel", 25, 28))
sketch9.addConstraint(Sketcher.Constraint("Parallel", 26, 29))
sketch9.addConstraint(Sketcher.Constraint("Parallel", 31, 34))
sketch9.addConstraint(Sketcher.Constraint("Parallel", 32, 35))
sketch9.addConstraint(Sketcher.Constraint("Horizontal", 2, 2, 4, 2))
sketch9.addConstraint(Sketcher.Constraint("Horizontal", 1, 2, 5, 2))
sketch9.addConstraint(Sketcher.Constraint("Horizontal", 8, 2, 10, 2))
sketch9.addConstraint(Sketcher.Constraint("Vertical", 3, 2, 6, 2))
sketch9.addConstraint(Sketcher.Constraint("Vertical", 5, 2, 7, 2))
sketch9.addConstraint(Sketcher.Constraint("Equal", 5, 8))
sketch9.addConstraint(Sketcher.Constraint("Angle", 0, Q("-30 deg")))
sketch9.addConstraint(Sketcher.Constraint("DistanceY", 7, 2, 4, 2, 50.0))
sketch9.addConstraint(Sketcher.Constraint("DistanceX", 20, 2, 12, 2, 152.0))
sketch9.addConstraint(Sketcher.Constraint("DistanceX", -1, 1, 0, 2, 74.8))
sketch9.addConstraint(Sketcher.Constraint("DistanceY", 2, 1, 2, 2, 2.771281))
pocket7 = body.newObject("PartDesign::Pocket", "Pocket006")
pocket7.Profile = sketch9
pocket7.Length = 1.8

# Sketch on XZ plane
sketch10 = body.newObject("Sketcher::SketchObject", "Sketch009")
sketch10.AttachmentSupport = (doc.getObject("XZ_Plane"), [""])
sketch10.MapMode = "FlatFace"
sketch10.AttachmentOffset = App.Placement(App.Vector(0, 0, 4.4), App.Rotation())
sketch10.addGeometry(Part.LineSegment(App.Vector(78.4, -17.9, 0), App.Vector(-29.05, -17.9, 0)), False)
sketch10.addGeometry(Part.LineSegment(App.Vector(-29.05, -17.9, 0), App.Vector(-44.95, -33.8, 0)), False)
sketch10.addGeometry(Part.LineSegment(App.Vector(-44.95, -33.8, 0), App.Vector(-44.95, -86.8, 0)), False)
sketch10.addGeometry(Part.LineSegment(App.Vector(-44.95, -86.8, 0), App.Vector(-29.05, -86.8, 0)), False)
sketch10.addGeometry(Part.LineSegment(App.Vector(-29.05, -86.8, 0), App.Vector(-29.05, -33.8, 0)), False)
sketch10.addGeometry(Part.LineSegment(App.Vector(-29.05, -33.8, 0), App.Vector(78.4, -33.8, 0)), False)
sketch10.addGeometry(Part.LineSegment(App.Vector(78.4, -33.8, 0), App.Vector(78.4, -17.9, 0)), False)
sketch10.addConstraint(Sketcher.Constraint("Coincident", 0, 2, 1, 1))
sketch10.addConstraint(Sketcher.Constraint("Coincident", 1, 2, 2, 1))
sketch10.addConstraint(Sketcher.Constraint("Coincident", 2, 2, 3, 1))
sketch10.addConstraint(Sketcher.Constraint("Coincident", 3, 2, 4, 1))
sketch10.addConstraint(Sketcher.Constraint("Coincident", 4, 2, 5, 1))
sketch10.addConstraint(Sketcher.Constraint("Coincident", 5, 2, 6, 1))
sketch10.addConstraint(Sketcher.Constraint("Coincident", 6, 2, 0, 1))
sketch10.addConstraint(Sketcher.Constraint("Horizontal", 0))
sketch10.addConstraint(Sketcher.Constraint("Vertical", 2))
sketch10.addConstraint(Sketcher.Constraint("Horizontal", 3))
sketch10.addConstraint(Sketcher.Constraint("Vertical", 4))
sketch10.addConstraint(Sketcher.Constraint("Horizontal", 5))
sketch10.addConstraint(Sketcher.Constraint("Vertical", 6))
sketch10.addConstraint(Sketcher.Constraint("Horizontal", 1, 2, 4, 2))
sketch10.addConstraint(Sketcher.Constraint("Vertical", 0, 2, 3, 2))
sketch10.addConstraint(Sketcher.Constraint("Equal", 3, 6))
sketch10.addConstraint(Sketcher.Constraint("DistanceY", 2, 2, 2, 1, 53.0))
sketch10.addConstraint(Sketcher.Constraint("DistanceX", 3, 1, 3, 2, 15.9))
sketch10.addConstraint(Sketcher.Constraint("DistanceX", 0, 2, 0, 1, 107.45))
sketch10.addConstraint(Sketcher.Constraint("DistanceY", 0, 2, -1, 1, 17.9))
sketch10.addConstraint(Sketcher.Constraint("DistanceX", -1, 1, 5, 2, 78.4))
pocket8 = body.newObject("PartDesign::Pocket", "Pocket007")
pocket8.Profile = sketch10
pocket8.Length = 0.4

doc.recompute()
